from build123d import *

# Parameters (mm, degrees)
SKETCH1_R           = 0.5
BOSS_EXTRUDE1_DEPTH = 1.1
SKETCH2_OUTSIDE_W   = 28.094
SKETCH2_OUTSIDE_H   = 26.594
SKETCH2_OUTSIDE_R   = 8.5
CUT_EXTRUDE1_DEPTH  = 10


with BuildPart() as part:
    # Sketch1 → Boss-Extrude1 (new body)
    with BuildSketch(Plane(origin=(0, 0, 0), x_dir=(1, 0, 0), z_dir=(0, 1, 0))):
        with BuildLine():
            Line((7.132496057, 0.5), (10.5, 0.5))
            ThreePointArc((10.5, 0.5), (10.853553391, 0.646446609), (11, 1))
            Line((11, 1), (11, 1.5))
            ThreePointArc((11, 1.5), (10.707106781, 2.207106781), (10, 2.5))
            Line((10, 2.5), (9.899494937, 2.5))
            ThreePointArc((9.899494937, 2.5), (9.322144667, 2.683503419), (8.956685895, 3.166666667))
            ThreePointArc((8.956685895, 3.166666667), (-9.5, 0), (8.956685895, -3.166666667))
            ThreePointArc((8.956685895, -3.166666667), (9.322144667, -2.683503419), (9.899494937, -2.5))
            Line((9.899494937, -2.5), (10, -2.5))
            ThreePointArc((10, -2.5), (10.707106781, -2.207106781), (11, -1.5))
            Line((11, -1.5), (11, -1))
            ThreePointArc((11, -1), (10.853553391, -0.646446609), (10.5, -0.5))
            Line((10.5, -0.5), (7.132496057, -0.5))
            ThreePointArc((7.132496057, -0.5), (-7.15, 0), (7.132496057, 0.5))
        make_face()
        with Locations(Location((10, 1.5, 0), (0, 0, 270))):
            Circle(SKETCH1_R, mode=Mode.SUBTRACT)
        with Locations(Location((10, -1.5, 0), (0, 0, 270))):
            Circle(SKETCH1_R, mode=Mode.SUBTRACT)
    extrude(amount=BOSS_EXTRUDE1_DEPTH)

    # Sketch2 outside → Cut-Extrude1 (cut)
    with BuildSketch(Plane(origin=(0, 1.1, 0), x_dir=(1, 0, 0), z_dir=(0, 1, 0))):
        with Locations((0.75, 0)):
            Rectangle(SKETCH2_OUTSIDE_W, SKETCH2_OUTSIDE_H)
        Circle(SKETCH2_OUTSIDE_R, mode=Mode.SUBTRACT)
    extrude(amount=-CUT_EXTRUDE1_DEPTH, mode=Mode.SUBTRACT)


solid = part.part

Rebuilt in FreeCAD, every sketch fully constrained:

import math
import FreeCAD as App
import Part
import Sketcher

V = App.Vector
Q = App.Units.Quantity

doc = App.newDocument("Part")
body = doc.addObject("PartDesign::Body", "Body")

# Sketch on XZ plane
sketch1 = body.newObject("Sketcher::SketchObject", "Sketch")
sketch1.AttachmentSupport = (doc.getObject("XZ_Plane"), [""])
sketch1.MapMode = "FlatFace"
sketch1.addGeometry([
    Part.LineSegment(V(7.13, -0.5, 0), V(10.5, -0.5, 0)),  # 0
    Part.ArcOfCircle(Part.Circle(V(10.5, -1, 0), V(0, 0, 1), 0.5), math.radians(0), math.radians(90)),  # 1
    Part.LineSegment(V(11, -1, 0), V(11, -1.5, 0)),  # 2
    Part.ArcOfCircle(Part.Circle(V(10, -1.5, 0), V(0, 0, 1), 1), math.radians(-90), math.radians(0)),  # 3
    Part.LineSegment(V(10, -2.5, 0), V(9.9, -2.5, 0)),  # 4
    Part.ArcOfCircle(Part.Circle(V(9.9, -3.5, 0), V(0, 0, 1), 1), math.radians(90), math.radians(161)),  # 5
    Part.ArcOfCircle(Part.Circle(V(0, 0, 0), V(0, 0, 1), 9.5), math.radians(19), math.radians(341)),  # 6
    Part.ArcOfCircle(Part.Circle(V(9.9, 3.5, 0), V(0, 0, 1), 1), math.radians(-161), math.radians(-90)),  # 7
    Part.LineSegment(V(9.9, 2.5, 0), V(10, 2.5, 0)),  # 8
    Part.ArcOfCircle(Part.Circle(V(10, 1.5, 0), V(0, 0, 1), 1), math.radians(0), math.radians(90)),  # 9
    Part.LineSegment(V(11, 1.5, 0), V(11, 1, 0)),  # 10
    Part.ArcOfCircle(Part.Circle(V(10.5, 1, 0), V(0, 0, 1), 0.5), math.radians(-90), math.radians(0)),  # 11
    Part.LineSegment(V(10.5, 0.5, 0), V(7.13, 0.5, 0)),  # 12
    Part.ArcOfCircle(Part.Circle(V(0, 0, 0), V(0, 0, 1), 7.15), math.radians(4), math.radians(356)),  # 13
    Part.Circle(V(10, 1.5, 0), V(0, 0, 1), 0.5),  # 14
    Part.Circle(V(10, -1.5, 0), V(0, 0, 1), 0.5),  # 15
], False)
sketch1.addConstraint([
    Sketcher.Constraint("Tangent", 0, 2, 1, 2),
    Sketcher.Constraint("Tangent", 1, 1, 2, 1),
    Sketcher.Constraint("Tangent", 2, 2, 3, 2),
    Sketcher.Constraint("Tangent", 3, 1, 4, 1),
    Sketcher.Constraint("Tangent", 4, 2, 5, 1),
    Sketcher.Constraint("Tangent", 5, 2, 6, 2),
    Sketcher.Constraint("Tangent", 6, 1, 7, 1),
    Sketcher.Constraint("Tangent", 7, 2, 8, 1),
    Sketcher.Constraint("Tangent", 8, 2, 9, 2),
    Sketcher.Constraint("Tangent", 9, 1, 10, 1),
    Sketcher.Constraint("Tangent", 10, 2, 11, 2),
    Sketcher.Constraint("Tangent", 11, 1, 12, 1),
    Sketcher.Constraint("Coincident", 12, 2, 13, 1),
    Sketcher.Constraint("Coincident", 13, 2, 0, 1),
    Sketcher.Constraint("Horizontal", 0),
    Sketcher.Constraint("Vertical", 2),
    Sketcher.Constraint("Horizontal", 4),
    Sketcher.Constraint("Horizontal", 8),
    Sketcher.Constraint("Vertical", 10),
    Sketcher.Constraint("Horizontal", 12),
    Sketcher.Constraint("Coincident", 6, 3, -1, 1),
    Sketcher.Constraint("Coincident", 13, 3, -1, 1),
    Sketcher.Constraint("Coincident", 14, 3, 9, 3),
    Sketcher.Constraint("Coincident", 15, 3, 3, 3),
    Sketcher.Constraint("Equal", 3, 5),
    Sketcher.Constraint("Equal", 5, 7),
    Sketcher.Constraint("Equal", 7, 9),
    Sketcher.Constraint("Equal", 1, 11),
    Sketcher.Constraint("Equal", 11, 14),
    Sketcher.Constraint("Equal", 14, 15),
    Sketcher.Constraint("Symmetric", 3, 3, 9, 3, -1),
    Sketcher.Constraint("Vertical", 12, 2, 13, 2),
    Sketcher.Constraint("Diameter", 14, Q("1 mm")),
    Sketcher.Constraint("Radius", 3, Q("1 mm")),
    Sketcher.Constraint("Radius", 6, Q("9.5 mm")),
    Sketcher.Constraint("Radius", 13, Q("7.15 mm")),
    Sketcher.Constraint("DistanceY", 2, 2, 2, 1, Q("0.5 mm")),
    Sketcher.Constraint("DistanceY", 1, 3, -1, 1, Q("1 mm")),
    Sketcher.Constraint("DistanceX", -1, 1, 3, 3, Q("10 mm")),
])
pad1 = body.newObject("PartDesign::Pad", "Pad")
pad1.Profile = sketch1
pad1.Length = 1.1
pad1.Reversed = True

# Sketch on XZ plane
sketch2 = body.newObject("Sketcher::SketchObject", "Sketch001")
sketch2.AttachmentSupport = (doc.getObject("XZ_Plane"), [""])
sketch2.MapMode = "FlatFace"
sketch2.AttachmentOffset = App.Placement(V(0, 0, -1.1), App.Rotation())
sketch2.addGeometry([
    Part.LineSegment(V(-13, -13, 0), V(-13, 13, 0)),  # 0
    Part.LineSegment(V(-13, 13, 0), V(15, 13, 0)),  # 1
    Part.LineSegment(V(15, 13, 0), V(15, -13, 0)),  # 2
    Part.LineSegment(V(15, -13, 0), V(-13, -13, 0)),  # 3
    Part.Circle(V(0, 0, 0), V(0, 0, 1), 8),  # 4
], False)
sketch2.addConstraint([
    Sketcher.Constraint("Coincident", 0, 2, 1, 1),
    Sketcher.Constraint("Coincident", 1, 2, 2, 1),
    Sketcher.Constraint("Coincident", 2, 2, 3, 1),
    Sketcher.Constraint("Coincident", 3, 2, 0, 1),
    Sketcher.Constraint("Vertical", 0),
    Sketcher.Constraint("Horizontal", 1),
    Sketcher.Constraint("Vertical", 2),
    Sketcher.Constraint("Horizontal", 3),
    Sketcher.Constraint("Coincident", 4, 3, -1, 1),
    Sketcher.Constraint("Diameter", 4, Q("17 mm")),
    Sketcher.Constraint("DistanceX", 1, 1, 1, 2, Q("28.094 mm")),
    Sketcher.Constraint("DistanceY", 0, 1, 0, 2, Q("26.594 mm")),
    Sketcher.Constraint("DistanceX", 0, 2, -1, 1, Q("13.297 mm")),
    Sketcher.Constraint("DistanceY", -1, 1, 0, 2, Q("13.297 mm")),
])
pocket1 = body.newObject("PartDesign::Pocket", "Pocket")
pocket1.Profile = sketch2
pocket1.Length = 10
pocket1.Reversed = True

doc.recompute()
